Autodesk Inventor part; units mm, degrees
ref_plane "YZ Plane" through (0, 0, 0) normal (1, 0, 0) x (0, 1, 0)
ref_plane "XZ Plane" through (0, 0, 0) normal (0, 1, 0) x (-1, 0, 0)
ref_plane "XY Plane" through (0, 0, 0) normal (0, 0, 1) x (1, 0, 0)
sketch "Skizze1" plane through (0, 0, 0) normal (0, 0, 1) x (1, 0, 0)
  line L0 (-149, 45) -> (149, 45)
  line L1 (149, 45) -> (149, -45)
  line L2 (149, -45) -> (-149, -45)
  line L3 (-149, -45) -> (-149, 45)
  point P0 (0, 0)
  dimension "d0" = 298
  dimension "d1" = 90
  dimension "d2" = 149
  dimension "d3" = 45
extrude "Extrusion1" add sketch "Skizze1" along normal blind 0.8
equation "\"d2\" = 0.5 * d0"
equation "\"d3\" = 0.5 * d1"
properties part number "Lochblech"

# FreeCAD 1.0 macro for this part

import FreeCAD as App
import Part
import Sketcher

V = App.Vector
Q = App.Units.Quantity

doc = App.newDocument("Part")
body = doc.addObject("PartDesign::Body", "Body")

# Sketch on XY plane
sketch1 = doc.addObject("Sketcher::SketchObject", "Sketch")
body.addObject(sketch1)
sketch1.AttachmentSupport = (doc.XY_Plane, [""])
sketch1.MapMode = "FlatFace"
sketch1.addGeometry(Part.LineSegment(V(149, 45, 0), V(-149, 45, 0)), False)
sketch1.addGeometry(Part.LineSegment(V(-149, 45, 0), V(-149, -45, 0)), False)
sketch1.addGeometry(Part.LineSegment(V(-149, -45, 0), V(149, -45, 0)), False)
sketch1.addGeometry(Part.LineSegment(V(149, -45, 0), V(149, 45, 0)), False)
sketch1.addConstraint(Sketcher.Constraint("Coincident", 0, 2, 1, 1))
sketch1.addConstraint(Sketcher.Constraint("Coincident", 1, 2, 2, 1))
sketch1.addConstraint(Sketcher.Constraint("Coincident", 2, 2, 3, 1))
sketch1.addConstraint(Sketcher.Constraint("Coincident", 3, 2, 0, 1))
sketch1.addConstraint(Sketcher.Constraint("Horizontal", 0))
sketch1.addConstraint(Sketcher.Constraint("Vertical", 1))
sketch1.addConstraint(Sketcher.Constraint("Horizontal", 2))
sketch1.addConstraint(Sketcher.Constraint("Vertical", 3))
sketch1.addConstraint(Sketcher.Constraint("Symmetric", 0, 2, 2, 2, -1, 1))
sketch1.addConstraint(Sketcher.Constraint("DistanceX", 0, 2, 0, 1, Q("298 mm")))
sketch1.addConstraint(Sketcher.Constraint("DistanceY", 1, 2, 1, 1, Q("90 mm")))
pad1 = doc.addObject("PartDesign::Pad", "Pad")
body.addObject(pad1)
pad1.Profile = sketch1
pad1.Length = 0.8

doc.recompute()
